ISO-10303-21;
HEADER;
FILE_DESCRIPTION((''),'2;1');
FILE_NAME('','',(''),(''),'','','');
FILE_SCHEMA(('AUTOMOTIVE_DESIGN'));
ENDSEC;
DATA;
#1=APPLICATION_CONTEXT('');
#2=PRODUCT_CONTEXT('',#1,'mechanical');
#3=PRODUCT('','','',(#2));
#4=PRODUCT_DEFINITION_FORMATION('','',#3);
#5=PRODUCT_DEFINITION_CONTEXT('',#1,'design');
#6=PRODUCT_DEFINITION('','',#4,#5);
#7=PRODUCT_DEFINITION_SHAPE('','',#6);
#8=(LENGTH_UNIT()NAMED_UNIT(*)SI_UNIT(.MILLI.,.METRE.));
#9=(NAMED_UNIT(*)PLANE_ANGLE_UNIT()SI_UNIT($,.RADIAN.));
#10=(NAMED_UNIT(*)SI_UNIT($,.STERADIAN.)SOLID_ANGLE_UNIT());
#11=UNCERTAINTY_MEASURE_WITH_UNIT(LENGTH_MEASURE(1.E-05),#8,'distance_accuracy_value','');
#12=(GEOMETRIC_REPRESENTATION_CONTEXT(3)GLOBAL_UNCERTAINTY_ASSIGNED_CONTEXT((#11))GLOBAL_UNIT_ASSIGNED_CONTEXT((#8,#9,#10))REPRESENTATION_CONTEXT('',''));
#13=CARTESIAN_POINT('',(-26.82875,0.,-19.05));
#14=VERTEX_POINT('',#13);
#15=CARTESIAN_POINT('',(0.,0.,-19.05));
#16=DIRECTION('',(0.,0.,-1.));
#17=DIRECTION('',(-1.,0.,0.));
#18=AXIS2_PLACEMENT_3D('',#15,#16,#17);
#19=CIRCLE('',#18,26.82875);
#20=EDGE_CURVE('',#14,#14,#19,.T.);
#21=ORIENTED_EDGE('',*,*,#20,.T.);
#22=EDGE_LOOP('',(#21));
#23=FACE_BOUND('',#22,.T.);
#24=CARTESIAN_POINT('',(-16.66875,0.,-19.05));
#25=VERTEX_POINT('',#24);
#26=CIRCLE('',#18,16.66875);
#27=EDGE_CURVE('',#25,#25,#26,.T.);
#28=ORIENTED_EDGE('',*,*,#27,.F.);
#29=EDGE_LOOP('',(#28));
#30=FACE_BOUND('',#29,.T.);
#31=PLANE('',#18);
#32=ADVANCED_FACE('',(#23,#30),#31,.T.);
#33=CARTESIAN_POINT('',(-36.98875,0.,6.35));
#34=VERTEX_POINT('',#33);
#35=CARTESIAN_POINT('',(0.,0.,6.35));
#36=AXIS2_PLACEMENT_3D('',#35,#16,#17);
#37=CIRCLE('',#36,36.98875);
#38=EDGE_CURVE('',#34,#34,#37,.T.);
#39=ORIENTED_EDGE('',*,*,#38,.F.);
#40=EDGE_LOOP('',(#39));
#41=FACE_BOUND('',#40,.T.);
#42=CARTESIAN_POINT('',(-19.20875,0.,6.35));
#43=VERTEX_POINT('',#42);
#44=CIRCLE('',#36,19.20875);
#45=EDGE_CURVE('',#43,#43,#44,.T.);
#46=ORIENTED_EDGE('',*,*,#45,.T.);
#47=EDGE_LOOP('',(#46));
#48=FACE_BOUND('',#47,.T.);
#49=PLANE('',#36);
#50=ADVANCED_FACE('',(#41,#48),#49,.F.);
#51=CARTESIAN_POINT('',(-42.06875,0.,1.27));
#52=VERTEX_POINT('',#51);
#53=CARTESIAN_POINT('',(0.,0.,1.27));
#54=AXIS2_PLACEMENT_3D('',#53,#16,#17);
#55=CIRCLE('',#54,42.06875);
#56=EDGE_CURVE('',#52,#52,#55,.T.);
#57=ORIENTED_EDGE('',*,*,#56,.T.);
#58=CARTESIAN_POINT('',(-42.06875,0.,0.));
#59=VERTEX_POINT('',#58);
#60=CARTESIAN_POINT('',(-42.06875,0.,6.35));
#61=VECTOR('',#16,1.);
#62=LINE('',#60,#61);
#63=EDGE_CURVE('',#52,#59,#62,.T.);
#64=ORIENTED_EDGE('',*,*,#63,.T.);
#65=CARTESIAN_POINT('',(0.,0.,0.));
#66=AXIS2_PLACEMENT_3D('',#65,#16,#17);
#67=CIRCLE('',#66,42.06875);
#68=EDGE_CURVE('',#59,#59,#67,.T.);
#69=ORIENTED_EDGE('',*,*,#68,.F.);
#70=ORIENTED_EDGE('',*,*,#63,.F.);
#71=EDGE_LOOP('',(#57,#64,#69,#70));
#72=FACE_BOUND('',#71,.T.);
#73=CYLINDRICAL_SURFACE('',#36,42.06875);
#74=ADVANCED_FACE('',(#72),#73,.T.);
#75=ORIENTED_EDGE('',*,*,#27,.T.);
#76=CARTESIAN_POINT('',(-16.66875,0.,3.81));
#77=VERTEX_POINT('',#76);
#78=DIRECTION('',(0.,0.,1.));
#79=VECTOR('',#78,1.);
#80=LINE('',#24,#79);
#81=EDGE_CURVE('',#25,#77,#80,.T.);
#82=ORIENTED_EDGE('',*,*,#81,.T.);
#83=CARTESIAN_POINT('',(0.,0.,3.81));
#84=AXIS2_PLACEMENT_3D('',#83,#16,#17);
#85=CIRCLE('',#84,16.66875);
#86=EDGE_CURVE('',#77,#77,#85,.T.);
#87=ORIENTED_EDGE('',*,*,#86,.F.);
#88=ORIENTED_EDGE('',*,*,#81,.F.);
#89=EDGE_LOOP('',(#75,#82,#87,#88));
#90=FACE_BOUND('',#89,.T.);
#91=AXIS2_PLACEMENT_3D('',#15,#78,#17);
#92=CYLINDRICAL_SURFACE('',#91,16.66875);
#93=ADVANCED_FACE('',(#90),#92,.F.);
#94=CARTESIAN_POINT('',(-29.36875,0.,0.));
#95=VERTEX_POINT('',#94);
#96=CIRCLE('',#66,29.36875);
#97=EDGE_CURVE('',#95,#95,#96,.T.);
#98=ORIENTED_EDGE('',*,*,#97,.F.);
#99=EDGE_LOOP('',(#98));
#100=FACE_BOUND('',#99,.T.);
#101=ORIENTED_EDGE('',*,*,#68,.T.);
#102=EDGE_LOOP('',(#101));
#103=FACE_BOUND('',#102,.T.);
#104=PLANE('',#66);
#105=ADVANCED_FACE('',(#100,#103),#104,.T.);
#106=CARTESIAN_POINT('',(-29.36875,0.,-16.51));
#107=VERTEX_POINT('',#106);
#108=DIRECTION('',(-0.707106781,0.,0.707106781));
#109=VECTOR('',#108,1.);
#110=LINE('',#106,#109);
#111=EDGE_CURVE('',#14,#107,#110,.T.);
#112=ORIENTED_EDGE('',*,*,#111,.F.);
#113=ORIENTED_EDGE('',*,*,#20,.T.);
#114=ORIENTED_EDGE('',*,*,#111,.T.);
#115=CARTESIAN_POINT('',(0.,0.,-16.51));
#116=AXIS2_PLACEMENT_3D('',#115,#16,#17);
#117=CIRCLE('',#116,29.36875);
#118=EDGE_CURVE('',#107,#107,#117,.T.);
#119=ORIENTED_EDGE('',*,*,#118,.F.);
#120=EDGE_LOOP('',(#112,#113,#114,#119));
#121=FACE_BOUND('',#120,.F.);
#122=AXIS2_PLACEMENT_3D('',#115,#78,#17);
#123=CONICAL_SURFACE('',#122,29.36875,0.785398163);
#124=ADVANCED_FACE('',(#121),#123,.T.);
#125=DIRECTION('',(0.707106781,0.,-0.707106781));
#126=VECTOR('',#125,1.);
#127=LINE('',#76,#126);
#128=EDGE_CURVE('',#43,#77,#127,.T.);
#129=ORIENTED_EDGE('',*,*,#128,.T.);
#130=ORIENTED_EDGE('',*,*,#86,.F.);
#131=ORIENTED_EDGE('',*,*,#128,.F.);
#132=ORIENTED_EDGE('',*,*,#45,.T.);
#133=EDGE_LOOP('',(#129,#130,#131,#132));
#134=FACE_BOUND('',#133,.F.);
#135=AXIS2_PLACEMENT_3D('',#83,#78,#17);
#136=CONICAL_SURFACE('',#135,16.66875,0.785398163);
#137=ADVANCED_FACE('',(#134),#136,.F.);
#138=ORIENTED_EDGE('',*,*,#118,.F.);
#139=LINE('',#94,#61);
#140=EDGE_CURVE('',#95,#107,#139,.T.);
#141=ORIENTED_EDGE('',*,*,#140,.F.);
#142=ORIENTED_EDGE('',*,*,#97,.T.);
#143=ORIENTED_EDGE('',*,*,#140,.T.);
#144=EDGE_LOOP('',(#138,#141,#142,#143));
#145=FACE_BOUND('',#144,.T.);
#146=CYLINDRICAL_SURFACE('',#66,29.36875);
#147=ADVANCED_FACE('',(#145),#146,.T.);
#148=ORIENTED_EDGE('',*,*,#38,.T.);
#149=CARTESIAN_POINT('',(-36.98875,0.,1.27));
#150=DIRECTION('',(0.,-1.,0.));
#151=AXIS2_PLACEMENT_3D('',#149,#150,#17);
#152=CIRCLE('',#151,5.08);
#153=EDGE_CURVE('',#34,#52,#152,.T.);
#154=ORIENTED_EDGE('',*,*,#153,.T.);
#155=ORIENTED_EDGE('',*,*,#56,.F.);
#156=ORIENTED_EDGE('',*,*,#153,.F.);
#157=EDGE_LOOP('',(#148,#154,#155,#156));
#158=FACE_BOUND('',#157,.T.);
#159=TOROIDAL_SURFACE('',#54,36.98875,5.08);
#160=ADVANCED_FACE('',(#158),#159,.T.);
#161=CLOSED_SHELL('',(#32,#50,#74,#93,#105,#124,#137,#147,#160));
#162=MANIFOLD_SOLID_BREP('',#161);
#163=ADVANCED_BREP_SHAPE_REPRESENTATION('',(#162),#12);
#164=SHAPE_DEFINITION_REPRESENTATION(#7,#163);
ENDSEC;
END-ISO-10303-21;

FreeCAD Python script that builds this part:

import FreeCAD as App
import Part
import Sketcher
from FreeCAD import Vector
Q = App.Units.Quantity


def edges_at(feature, points):
    """Names of the edges that pass closest to the given points."""
    edges = feature.Shape.Edges
    near = lambda p: min(range(len(edges)), key=lambda i: edges[i].distToShape(Part.Vertex(*p))[0])
    return sorted({f"Edge{near(p) + 1}" for p in points})


def add_polygon(sketch, points):
    """Adds a closed chain of lines whose ends are joined by coincident constraints."""
    first, n = sketch.GeometryCount, len(points)
    for a, b in zip(points, points[1:] + points[:1]):
        sketch.addGeometry(Part.LineSegment(App.Vector(*a, 0), App.Vector(*b, 0)), False)
    for i in range(n):
        sketch.addConstraint(Sketcher.Constraint("Coincident", first + i, 2, first + (i + 1) % n, 1))

doc = App.newDocument("Part")
body = doc.addObject("PartDesign::Body", "Body")

# Sketch on XZ plane
sketch1 = body.newObject("Sketcher::SketchObject", "Sketch")
sketch1.AttachmentSupport = (doc.getObject("XZ_Plane"), [""])
sketch1.MapMode = "FlatFace"
add_polygon(sketch1, [(-42, 0), (-29, 0), (-29, -19), (-17, -19), (-17, 6), (-42, 6)])  # lines 0-5
sketch1.addConstraint([
    Sketcher.Constraint("Horizontal", 0),
    Sketcher.Constraint("Vertical", 1),
    Sketcher.Constraint("Horizontal", 2),
    Sketcher.Constraint("Vertical", 3),
    Sketcher.Constraint("Horizontal", 4),
    Sketcher.Constraint("Vertical", 5),
    Sketcher.Constraint("PointOnObject", 0, 2, -1),
    Sketcher.Constraint("Equal", 0, 2),
    Sketcher.Constraint("Equal", 4, 3),
    Sketcher.Constraint("DistanceX", 4, 2, 4, 1, Q("1 in")),
    Sketcher.Constraint("DistanceY", 1, 2, 1, 1, Q("0.75 in")),
    Sketcher.Constraint("DistanceX", 0, 2, -1, 1, Q("1.15625 in")),
])
revolution = body.newObject("PartDesign::Revolution", "Revolution")
revolution.Profile = sketch1
revolution.ReferenceAxis = (sketch1, ["V_Axis"])
revolution.Angle = 360
doc.recompute()

fillet = body.newObject("PartDesign::Fillet", "Fillet")
fillet.Base = (revolution, edges_at(revolution, [(42.069, 0, 6.35)]))
fillet.Radius = Q("0.2 in")
doc.recompute()

chamfer = body.newObject("PartDesign::Chamfer", "Chamfer")
chamfer.Base = (fillet, edges_at(fillet, [(16.669, 0, 6.35)]))
chamfer.Size = Q("0.1 in")
doc.recompute()

chamfer2 = body.newObject("PartDesign::Chamfer", "Chamfer001")
chamfer2.Base = (chamfer, edges_at(chamfer, [(29.369, 0, -19.05)]))
chamfer2.Size = Q("0.1 in")

doc.recompute()
